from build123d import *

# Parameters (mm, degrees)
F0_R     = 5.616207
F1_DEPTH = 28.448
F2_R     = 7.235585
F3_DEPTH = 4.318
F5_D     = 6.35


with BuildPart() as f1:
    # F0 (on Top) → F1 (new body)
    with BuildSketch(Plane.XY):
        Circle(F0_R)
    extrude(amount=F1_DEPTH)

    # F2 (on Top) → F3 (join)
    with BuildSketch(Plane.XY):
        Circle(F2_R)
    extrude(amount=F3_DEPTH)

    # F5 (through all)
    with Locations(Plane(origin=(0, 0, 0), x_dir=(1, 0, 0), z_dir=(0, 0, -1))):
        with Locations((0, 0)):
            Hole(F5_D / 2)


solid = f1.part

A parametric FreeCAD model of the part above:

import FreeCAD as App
import Part
import Sketcher
from FreeCAD import Vector
Q = App.Units.Quantity

doc = App.newDocument("Part")
body = doc.addObject("PartDesign::Body", "Body")

# Sketch on XY plane
sketch1 = doc.addObject("Sketcher::SketchObject", "Sketch")
body.addObject(sketch1)
sketch1.AttachmentSupport = (doc.XY_Plane, [""])
sketch1.MapMode = "FlatFace"
sketch1.addGeometry(Part.Circle(Vector(0, 0, 0), Vector(0, 0, 1), 5.616207), False)
sketch1.addConstraint(Sketcher.Constraint("Coincident", 0, 3, -1, 1))
sketch1.addConstraint(Sketcher.Constraint("Diameter", 0, Q("11.232414 mm")))
pad1 = doc.addObject("PartDesign::Pad", "Pad")
body.addObject(pad1)
pad1.Profile = sketch1
pad1.Length = Q("1.12 in")

# Sketch on XY plane
sketch2 = doc.addObject("Sketcher::SketchObject", "Sketch001")
body.addObject(sketch2)
sketch2.AttachmentSupport = (doc.XY_Plane, [""])
sketch2.MapMode = "FlatFace"
sketch2.addGeometry(Part.Circle(Vector(0, 0, 0), Vector(0, 0, 1), 7.235585), False)
sketch2.addConstraint(Sketcher.Constraint("Coincident", 0, 3, -1, 1))
sketch2.addConstraint(Sketcher.Constraint("Diameter", 0, Q("14.47117 mm")))
pad2 = doc.addObject("PartDesign::Pad", "Pad001")
body.addObject(pad2)
pad2.Profile = sketch2
pad2.Length = Q("0.17 in")

# Sketch on XY plane
sketch3 = doc.addObject("Sketcher::SketchObject", "Sketch002")
body.addObject(sketch3)
sketch3.AttachmentSupport = (doc.XY_Plane, [""])
sketch3.MapMode = "FlatFace"
sketch3.addGeometry(Part.Circle(Vector(0, 0, 0), Vector(0, 0, 1), 3.175), False)
sketch3.addConstraint(Sketcher.Constraint("Coincident", 0, 3, -1, 1))
sketch3.addConstraint(Sketcher.Constraint("Diameter", 0, Q("0.25 in")))
doc.recompute()
hole = doc.addObject("PartDesign::Hole", "Hole")
body.addObject(hole)
hole.Profile = sketch3
hole.ThreadType = "None"
hole.Diameter = Q("0.25 in")
hole.DepthType = "ThroughAll"
hole.Reversed = True

doc.recompute()
